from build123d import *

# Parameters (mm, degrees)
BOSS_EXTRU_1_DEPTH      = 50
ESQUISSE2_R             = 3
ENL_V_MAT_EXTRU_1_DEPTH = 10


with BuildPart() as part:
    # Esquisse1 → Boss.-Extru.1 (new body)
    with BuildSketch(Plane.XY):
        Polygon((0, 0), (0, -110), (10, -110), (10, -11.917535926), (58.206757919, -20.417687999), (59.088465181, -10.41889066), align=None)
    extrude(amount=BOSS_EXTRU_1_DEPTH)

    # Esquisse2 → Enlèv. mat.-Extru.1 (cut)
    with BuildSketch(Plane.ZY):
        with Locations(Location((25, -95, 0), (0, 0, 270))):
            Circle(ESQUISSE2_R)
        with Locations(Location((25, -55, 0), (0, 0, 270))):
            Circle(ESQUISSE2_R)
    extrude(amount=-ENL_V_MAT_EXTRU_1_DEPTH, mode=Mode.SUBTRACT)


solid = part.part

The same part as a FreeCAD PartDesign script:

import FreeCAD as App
import Part
import Sketcher

V = App.Vector
Q = App.Units.Quantity

doc = App.newDocument("Part")
body = doc.addObject("PartDesign::Body", "Body")

# Sketch on XY plane
sketch1 = body.newObject("Sketcher::SketchObject", "Sketch")
sketch1.AttachmentSupport = (doc.getObject("XY_Plane"), [""])
sketch1.MapMode = "FlatFace"
sketch1.addGeometry([
    Part.LineSegment(V(0, 0, 0), V(0, -110, 0)),  # 0
    Part.LineSegment(V(0, -110, 0), V(10, -110, 0)),  # 1
    Part.LineSegment(V(10, -110, 0), V(10, -11.917536, 0)),  # 2
    Part.LineSegment(V(10, -11.917536, 0), V(58.206758, -20.417688, 0)),  # 3
    Part.LineSegment(V(58.206758, -20.417688, 0), V(59.088465, -10.418891, 0)),  # 4
    Part.LineSegment(V(59.088465, -10.418891, 0), V(0, 0, 0)),  # 5
], False)
sketch1.addConstraint([
    Sketcher.Constraint("Coincident", 0, 2, 1, 1),
    Sketcher.Constraint("Coincident", 1, 2, 2, 1),
    Sketcher.Constraint("Coincident", 2, 2, 3, 1),
    Sketcher.Constraint("Coincident", 3, 2, 4, 1),
    Sketcher.Constraint("Coincident", 4, 2, 5, 1),
    Sketcher.Constraint("Coincident", 5, 2, 0, 1),
    Sketcher.Constraint("Vertical", 0),
    Sketcher.Constraint("Horizontal", 1),
    Sketcher.Constraint("Vertical", 2),
    Sketcher.Constraint("Coincident", 5, 2, -1, 1),
    Sketcher.Constraint("Parallel", 3, 5),
    Sketcher.Constraint("DistanceX", 1, 1, 1, 2, Q("10 mm")),
    Sketcher.Constraint("DistanceY", 0, 2, 0, 1, Q("110 mm")),
    Sketcher.Constraint("Angle", 3, Q("-10 deg")),
    Sketcher.Constraint("Distance", 5, Q("60 mm")),
    Sketcher.Constraint("DistanceY", 2, 1, 2, 2, Q("98.082464 mm")),
    Sketcher.Constraint("Distance", 3, Q("48.950425 mm")),
])
pad1 = body.newObject("PartDesign::Pad", "Pad")
pad1.Profile = sketch1
pad1.Length = 50

# Sketch on YZ plane
sketch2 = body.newObject("Sketcher::SketchObject", "Sketch001")
sketch2.AttachmentSupport = (doc.getObject("YZ_Plane"), [""])
sketch2.MapMode = "FlatFace"
sketch2.addGeometry([
    Part.Circle(V(-95, 25, 0), V(0, 0, 1), 3),
    Part.Circle(V(-55, 25, 0), V(0, 0, 1), 3),
], False)
sketch2.addConstraint([
    Sketcher.Constraint("Equal", 0, 1),
    Sketcher.Constraint("Horizontal", 0, 3, 1, 3),
    Sketcher.Constraint("Diameter", 0, Q("6 mm")),
    Sketcher.Constraint("DistanceX", 0, 3, -1, 1, Q("95 mm")),
    Sketcher.Constraint("DistanceY", -1, 1, 0, 3, Q("25 mm")),
    Sketcher.Constraint("DistanceX", 1, 3, -1, 1, Q("55 mm")),
])
pocket1 = body.newObject("PartDesign::Pocket", "Pocket")
pocket1.Profile = sketch2
pocket1.Length = 10
pocket1.Reversed = True

doc.recompute()
